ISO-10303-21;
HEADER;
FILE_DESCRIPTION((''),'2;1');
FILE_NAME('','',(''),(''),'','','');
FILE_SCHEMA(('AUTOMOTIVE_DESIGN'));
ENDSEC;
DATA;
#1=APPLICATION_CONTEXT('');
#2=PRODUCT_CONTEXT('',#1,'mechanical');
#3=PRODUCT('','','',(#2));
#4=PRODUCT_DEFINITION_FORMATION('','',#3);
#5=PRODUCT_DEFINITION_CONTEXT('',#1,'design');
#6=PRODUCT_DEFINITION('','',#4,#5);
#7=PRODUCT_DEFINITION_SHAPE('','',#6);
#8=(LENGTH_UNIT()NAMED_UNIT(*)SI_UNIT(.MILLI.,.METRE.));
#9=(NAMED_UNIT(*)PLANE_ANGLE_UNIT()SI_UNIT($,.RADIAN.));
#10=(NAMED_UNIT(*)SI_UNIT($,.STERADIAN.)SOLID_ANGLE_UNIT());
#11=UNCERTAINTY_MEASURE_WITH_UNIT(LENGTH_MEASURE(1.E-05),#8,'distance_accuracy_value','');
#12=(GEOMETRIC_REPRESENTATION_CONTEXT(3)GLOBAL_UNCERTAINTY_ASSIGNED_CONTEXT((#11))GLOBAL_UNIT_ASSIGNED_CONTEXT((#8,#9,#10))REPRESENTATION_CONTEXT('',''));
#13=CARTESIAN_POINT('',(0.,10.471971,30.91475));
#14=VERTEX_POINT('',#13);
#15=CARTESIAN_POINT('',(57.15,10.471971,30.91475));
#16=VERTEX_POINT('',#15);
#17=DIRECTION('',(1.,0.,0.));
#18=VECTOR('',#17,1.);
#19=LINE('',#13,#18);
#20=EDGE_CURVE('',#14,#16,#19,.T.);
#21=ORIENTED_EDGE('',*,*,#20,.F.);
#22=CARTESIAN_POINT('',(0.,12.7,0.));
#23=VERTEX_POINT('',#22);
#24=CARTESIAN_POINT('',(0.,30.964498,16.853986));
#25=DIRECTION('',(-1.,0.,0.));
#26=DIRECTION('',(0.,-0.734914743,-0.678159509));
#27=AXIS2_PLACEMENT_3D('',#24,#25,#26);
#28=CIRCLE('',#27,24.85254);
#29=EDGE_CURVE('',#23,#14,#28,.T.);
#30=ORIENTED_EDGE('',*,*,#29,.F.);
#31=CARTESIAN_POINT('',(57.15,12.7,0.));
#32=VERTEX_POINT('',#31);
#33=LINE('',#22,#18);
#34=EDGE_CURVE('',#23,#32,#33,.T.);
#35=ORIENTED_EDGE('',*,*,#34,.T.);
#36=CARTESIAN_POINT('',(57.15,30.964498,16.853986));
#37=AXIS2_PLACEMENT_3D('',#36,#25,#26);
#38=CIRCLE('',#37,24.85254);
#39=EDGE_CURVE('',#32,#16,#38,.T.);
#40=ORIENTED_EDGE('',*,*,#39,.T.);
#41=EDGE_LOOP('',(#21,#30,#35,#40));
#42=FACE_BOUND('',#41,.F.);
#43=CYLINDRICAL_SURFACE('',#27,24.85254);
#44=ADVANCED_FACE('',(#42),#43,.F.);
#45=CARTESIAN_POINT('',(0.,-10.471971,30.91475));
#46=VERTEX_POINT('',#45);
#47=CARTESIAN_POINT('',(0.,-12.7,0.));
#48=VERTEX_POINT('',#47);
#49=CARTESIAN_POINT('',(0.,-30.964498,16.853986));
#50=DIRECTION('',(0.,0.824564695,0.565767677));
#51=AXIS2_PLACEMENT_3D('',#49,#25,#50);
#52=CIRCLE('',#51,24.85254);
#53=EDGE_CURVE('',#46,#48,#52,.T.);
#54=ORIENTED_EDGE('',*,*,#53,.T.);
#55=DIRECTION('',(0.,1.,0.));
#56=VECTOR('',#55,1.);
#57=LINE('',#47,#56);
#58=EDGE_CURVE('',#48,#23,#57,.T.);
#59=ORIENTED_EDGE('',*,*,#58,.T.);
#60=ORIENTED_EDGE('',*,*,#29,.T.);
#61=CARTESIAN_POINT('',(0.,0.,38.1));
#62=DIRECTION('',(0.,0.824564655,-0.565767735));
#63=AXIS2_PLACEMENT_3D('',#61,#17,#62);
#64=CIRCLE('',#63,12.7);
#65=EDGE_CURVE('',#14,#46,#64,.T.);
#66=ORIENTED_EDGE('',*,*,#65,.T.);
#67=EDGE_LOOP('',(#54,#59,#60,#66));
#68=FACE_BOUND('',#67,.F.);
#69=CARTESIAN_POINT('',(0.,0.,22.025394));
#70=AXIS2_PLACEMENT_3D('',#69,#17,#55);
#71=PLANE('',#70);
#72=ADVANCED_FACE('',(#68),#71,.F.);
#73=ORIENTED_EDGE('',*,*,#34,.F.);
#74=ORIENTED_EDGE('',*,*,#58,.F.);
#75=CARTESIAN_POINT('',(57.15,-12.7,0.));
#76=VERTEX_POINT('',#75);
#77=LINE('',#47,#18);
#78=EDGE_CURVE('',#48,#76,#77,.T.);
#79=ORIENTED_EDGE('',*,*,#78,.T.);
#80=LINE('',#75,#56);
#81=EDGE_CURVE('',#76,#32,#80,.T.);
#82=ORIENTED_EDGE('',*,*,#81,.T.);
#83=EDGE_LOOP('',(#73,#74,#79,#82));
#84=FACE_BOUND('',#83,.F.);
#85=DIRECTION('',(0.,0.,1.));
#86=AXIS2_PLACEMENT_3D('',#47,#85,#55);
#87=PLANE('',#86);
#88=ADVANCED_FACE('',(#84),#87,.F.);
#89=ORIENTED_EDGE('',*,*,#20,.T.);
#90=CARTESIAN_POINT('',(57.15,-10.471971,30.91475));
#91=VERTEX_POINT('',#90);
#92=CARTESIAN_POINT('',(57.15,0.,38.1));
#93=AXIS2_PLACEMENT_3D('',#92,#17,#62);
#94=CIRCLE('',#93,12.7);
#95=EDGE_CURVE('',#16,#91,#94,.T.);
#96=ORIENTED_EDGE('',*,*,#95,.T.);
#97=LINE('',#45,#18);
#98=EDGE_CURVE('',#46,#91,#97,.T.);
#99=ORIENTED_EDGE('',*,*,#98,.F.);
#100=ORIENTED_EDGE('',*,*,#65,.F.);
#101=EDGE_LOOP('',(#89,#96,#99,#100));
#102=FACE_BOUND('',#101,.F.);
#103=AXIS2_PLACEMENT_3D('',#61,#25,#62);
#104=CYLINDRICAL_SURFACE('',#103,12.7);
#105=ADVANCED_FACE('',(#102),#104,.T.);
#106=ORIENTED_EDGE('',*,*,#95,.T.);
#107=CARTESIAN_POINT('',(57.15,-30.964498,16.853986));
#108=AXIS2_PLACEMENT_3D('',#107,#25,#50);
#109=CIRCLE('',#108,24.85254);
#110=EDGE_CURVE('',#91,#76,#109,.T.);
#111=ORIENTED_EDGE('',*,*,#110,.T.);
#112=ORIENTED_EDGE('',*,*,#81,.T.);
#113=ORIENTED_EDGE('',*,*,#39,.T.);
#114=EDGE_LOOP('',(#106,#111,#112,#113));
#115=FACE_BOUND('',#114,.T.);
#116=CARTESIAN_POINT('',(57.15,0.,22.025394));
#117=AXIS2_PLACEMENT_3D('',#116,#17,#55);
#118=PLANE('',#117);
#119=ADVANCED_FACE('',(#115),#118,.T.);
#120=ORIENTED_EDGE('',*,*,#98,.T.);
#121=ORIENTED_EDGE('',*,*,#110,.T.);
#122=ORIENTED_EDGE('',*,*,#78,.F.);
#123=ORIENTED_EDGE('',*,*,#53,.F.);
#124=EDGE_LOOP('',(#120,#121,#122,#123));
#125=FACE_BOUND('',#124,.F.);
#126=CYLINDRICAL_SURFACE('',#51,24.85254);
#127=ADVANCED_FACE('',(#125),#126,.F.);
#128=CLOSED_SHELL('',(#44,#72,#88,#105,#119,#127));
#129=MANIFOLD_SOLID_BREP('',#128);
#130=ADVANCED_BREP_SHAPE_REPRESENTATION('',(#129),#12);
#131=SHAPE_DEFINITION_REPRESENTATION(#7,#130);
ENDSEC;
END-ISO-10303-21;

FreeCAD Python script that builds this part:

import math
import FreeCAD as App
import Part
import Sketcher
Q = App.Units.Quantity

doc = App.newDocument("Part")
body = doc.addObject("PartDesign::Body", "Body")

# Sketch on YZ plane
sketch1 = body.newObject("Sketcher::SketchObject", "Sketch")
sketch1.AttachmentSupport = (doc.getObject("YZ_Plane"), [""])
sketch1.MapMode = "FlatFace"
sketch1.addGeometry(Part.ArcOfCircle(Part.Circle(App.Vector(-30.964498, 16.853986, 0), App.Vector(0, 0, 1), 24.85254), math.radians(-42.699987), math.radians(34.455617)), False)
sketch1.addGeometry(Part.LineSegment(App.Vector(-12.7, 0, 0), App.Vector(12.7, 0, 0)), False)
sketch1.addGeometry(Part.ArcOfCircle(Part.Circle(App.Vector(30.964498, 16.853986, 0), App.Vector(0, 0, 1), 24.85254), math.radians(145.544383), math.radians(222.699987)), False)
sketch1.addGeometry(Part.ArcOfCircle(Part.Circle(App.Vector(0, 38.1, 0), App.Vector(0, 0, 1), 12.7), math.radians(-34.455621), math.radians(214.455621)), False)
sketch1.addConstraint(Sketcher.Constraint("Coincident", 0, 1, 1, 1))
sketch1.addConstraint(Sketcher.Constraint("Coincident", 1, 2, 2, 2))
sketch1.addConstraint(Sketcher.Constraint("Tangent", 2, 1, 3, 1))
sketch1.addConstraint(Sketcher.Constraint("Tangent", 3, 2, 0, 2))
sketch1.addConstraint(Sketcher.Constraint("Horizontal", 1))
sketch1.addConstraint(Sketcher.Constraint("Equal", 0, 2))
sketch1.addConstraint(Sketcher.Constraint("Symmetric", 0, 1, 1, 2, -1, 1))
sketch1.addConstraint(Sketcher.Constraint("PointOnObject", 3, 3, -2))
sketch1.addConstraint(Sketcher.Constraint("Radius", 3, Q("0.5 in")))
sketch1.addConstraint(Sketcher.Constraint("DistanceX", 1, 1, 1, 2, Q("1 in")))
sketch1.addConstraint(Sketcher.Constraint("DistanceY", -1, 1, 3, 3, Q("1.5 in")))
sketch1.addConstraint(Sketcher.Constraint("Radius", 0, Q("24.85254 mm")))
pad1 = body.newObject("PartDesign::Pad", "Pad")
pad1.Profile = sketch1
pad1.Length = Q("2.25 in")

doc.recompute()
